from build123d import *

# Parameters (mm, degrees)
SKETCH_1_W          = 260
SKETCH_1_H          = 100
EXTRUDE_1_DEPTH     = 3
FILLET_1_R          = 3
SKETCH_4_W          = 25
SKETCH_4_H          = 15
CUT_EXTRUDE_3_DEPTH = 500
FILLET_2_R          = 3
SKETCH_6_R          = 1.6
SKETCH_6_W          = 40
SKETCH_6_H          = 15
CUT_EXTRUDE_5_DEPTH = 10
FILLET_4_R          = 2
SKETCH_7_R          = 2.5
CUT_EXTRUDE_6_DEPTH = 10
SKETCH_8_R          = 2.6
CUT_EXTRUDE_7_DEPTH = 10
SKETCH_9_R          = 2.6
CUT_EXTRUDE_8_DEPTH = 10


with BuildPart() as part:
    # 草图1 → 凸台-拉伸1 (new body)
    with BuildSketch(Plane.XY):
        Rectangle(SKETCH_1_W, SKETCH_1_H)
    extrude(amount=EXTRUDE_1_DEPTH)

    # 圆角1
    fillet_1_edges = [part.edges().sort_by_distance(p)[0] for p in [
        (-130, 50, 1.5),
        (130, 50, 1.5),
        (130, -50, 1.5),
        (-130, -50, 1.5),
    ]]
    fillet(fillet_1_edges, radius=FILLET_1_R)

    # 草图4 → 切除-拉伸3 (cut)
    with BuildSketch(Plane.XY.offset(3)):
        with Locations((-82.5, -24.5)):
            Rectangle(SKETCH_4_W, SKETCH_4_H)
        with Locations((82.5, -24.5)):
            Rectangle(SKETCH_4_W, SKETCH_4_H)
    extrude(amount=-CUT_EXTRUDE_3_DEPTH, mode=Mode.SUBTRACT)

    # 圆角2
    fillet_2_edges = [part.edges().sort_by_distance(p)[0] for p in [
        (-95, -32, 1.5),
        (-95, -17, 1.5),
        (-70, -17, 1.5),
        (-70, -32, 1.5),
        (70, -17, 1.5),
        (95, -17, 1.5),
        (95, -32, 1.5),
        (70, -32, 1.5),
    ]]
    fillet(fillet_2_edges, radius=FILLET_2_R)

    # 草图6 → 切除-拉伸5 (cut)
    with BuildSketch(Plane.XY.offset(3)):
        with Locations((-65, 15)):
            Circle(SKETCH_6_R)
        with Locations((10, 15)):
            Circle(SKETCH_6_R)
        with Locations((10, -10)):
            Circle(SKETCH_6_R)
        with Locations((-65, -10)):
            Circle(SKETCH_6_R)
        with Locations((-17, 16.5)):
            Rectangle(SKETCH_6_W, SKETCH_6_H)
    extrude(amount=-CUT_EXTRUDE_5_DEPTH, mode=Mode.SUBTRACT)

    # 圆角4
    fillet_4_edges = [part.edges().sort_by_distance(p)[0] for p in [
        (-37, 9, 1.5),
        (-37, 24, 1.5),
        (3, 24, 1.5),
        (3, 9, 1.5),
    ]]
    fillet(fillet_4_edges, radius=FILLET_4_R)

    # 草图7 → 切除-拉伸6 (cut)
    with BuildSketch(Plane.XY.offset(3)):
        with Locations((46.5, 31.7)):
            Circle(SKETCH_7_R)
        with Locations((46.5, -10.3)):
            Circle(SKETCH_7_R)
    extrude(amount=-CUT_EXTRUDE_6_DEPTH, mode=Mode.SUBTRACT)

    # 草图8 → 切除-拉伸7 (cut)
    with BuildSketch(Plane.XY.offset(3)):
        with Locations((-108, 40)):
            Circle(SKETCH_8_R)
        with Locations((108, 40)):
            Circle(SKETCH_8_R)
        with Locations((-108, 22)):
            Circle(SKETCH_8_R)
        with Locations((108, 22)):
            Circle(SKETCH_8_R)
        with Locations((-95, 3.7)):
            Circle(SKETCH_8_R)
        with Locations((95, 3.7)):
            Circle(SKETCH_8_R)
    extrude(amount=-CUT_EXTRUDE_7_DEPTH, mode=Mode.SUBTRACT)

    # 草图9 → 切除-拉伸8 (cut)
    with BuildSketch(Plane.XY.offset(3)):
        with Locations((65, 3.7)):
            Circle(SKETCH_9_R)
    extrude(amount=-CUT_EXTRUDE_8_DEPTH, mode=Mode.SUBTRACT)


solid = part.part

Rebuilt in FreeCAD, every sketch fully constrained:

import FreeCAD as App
import Part
import Sketcher

V = App.Vector


def edges_at(feature, points):
    """Names of the edges that pass closest to the given points."""
    edges = feature.Shape.Edges
    near = lambda p: min(range(len(edges)), key=lambda i: edges[i].distToShape(Part.Vertex(*p))[0])
    return sorted({f"Edge{near(p) + 1}" for p in points})


def add_polygon(sketch, points):
    """Adds a closed chain of lines whose ends are joined by coincident constraints."""
    first, n = sketch.GeometryCount, len(points)
    for a, b in zip(points, points[1:] + points[:1]):
        sketch.addGeometry(Part.LineSegment(App.Vector(*a, 0), App.Vector(*b, 0)), False)
    for i in range(n):
        sketch.addConstraint(Sketcher.Constraint("Coincident", first + i, 2, first + (i + 1) % n, 1))

doc = App.newDocument("Part")
params = doc.addObject("Spreadsheet::Sheet", "Params")
for row, (alias, value) in enumerate([
    ("sketch1_width", "260 mm"),
    ("sketch1_height", "100 mm"),
    ("pad1_length", "3 mm"),
    ("fillet_radius", "3 mm"),
    ("sketch2_width", "25 mm"),
    ("sketch2_height", "15 mm"),
    ("pocket1_length", "500 mm"),
    ("fillet2_radius", "3 mm"),
    ("sketch3_diameter", "3.2 mm"),
    ("sketch3_width", "40 mm"),
    ("sketch3_height", "15 mm"),
    ("pocket2_length", "10 mm"),
    ("fillet3_radius", "2 mm"),
    ("sketch4_diameter", "5 mm"),
    ("pocket3_length", "10 mm"),
    ("sketch5_diameter", "5.2 mm"),
    ("pocket4_length", "10 mm"),
    ("sketch6_diameter", "5.2 mm"),
    ("pocket5_length", "10 mm"),
], start=1):
    params.set(f"A{row}", alias)
    params.set(f"B{row}", "=" + value)
    params.setAlias(f"B{row}", alias)

body = doc.addObject("PartDesign::Body", "Body")

# Sketch on XY plane
sketch1 = body.newObject("Sketcher::SketchObject", "Sketch")
sketch1.AttachmentSupport = (doc.getObject("XY_Plane"), [""])
sketch1.MapMode = "FlatFace"
add_polygon(sketch1, [(-130, 50), (-130, -50), (130, -50), (130, 50)])  # lines 0-3
sketch1.addConstraint([
    Sketcher.Constraint("Vertical", 0),
    Sketcher.Constraint("Horizontal", 1),
    Sketcher.Constraint("Vertical", 2),
    Sketcher.Constraint("Horizontal", 3),
    Sketcher.Constraint("Symmetric", 0, 2, 2, 2, -1, 1),
    Sketcher.Constraint("DistanceX", 1, 1, 1, 2, 260.0),
    Sketcher.Constraint("DistanceY", 0, 2, 0, 1, 100.0),
])
sketch1.setExpression("Constraints[9]", "Params.sketch1_width")
sketch1.setExpression("Constraints[10]", "Params.sketch1_height")
pad1 = body.newObject("PartDesign::Pad", "Pad")
pad1.Profile = sketch1
pad1.setExpression("Length", "Params.pad1_length")
doc.recompute()

fillet = body.newObject("PartDesign::Fillet", "Fillet")
fillet.Base = (pad1, edges_at(pad1, [
    (-130, 50, 1.5),
    (130, 50, 1.5),
    (130, -50, 1.5),
    (-130, -50, 1.5),
]))
fillet.setExpression("Radius", "Params.fillet_radius")

# Sketch on XY plane
sketch2 = body.newObject("Sketcher::SketchObject", "Sketch001")
sketch2.AttachmentSupport = (doc.getObject("XY_Plane"), [""])
sketch2.MapMode = "FlatFace"
sketch2.AttachmentOffset = App.Placement(V(0, 0, 3), App.Rotation())
add_polygon(sketch2, [(-95, -17), (-95, -32), (-70, -32), (-70, -17)])  # lines 0-3
add_polygon(sketch2, [(70, -17), (70, -32), (95, -32), (95, -17)])  # lines 4-7
sketch2.addConstraint([
    Sketcher.Constraint("Vertical", 0),
    Sketcher.Constraint("Horizontal", 1),
    Sketcher.Constraint("Vertical", 2),
    Sketcher.Constraint("Horizontal", 3),
    Sketcher.Constraint("Vertical", 4),
    Sketcher.Constraint("Horizontal", 5),
    Sketcher.Constraint("Vertical", 6),
    Sketcher.Constraint("Horizontal", 7),
    Sketcher.Constraint("Symmetric", 1, 2, 4, 2, -2),
    Sketcher.Constraint("Symmetric", 3, 2, 6, 2, -2),
    Sketcher.Constraint("DistanceX", 1, 1, 1, 2, 25.0),
    Sketcher.Constraint("DistanceY", 0, 2, 0, 1, 15.0),
    Sketcher.Constraint("DistanceX", 0, 2, -1, 1, 95.0),
    Sketcher.Constraint("DistanceY", 0, 2, -1, 1, 32.0),
])
sketch2.setExpression("Constraints[18]", "Params.sketch2_width")
sketch2.setExpression("Constraints[19]", "Params.sketch2_height")
pocket1 = body.newObject("PartDesign::Pocket", "Pocket")
pocket1.Profile = sketch2
pocket1.setExpression("Length", "Params.pocket1_length")
doc.recompute()

fillet2 = body.newObject("PartDesign::Fillet", "Fillet001")
fillet2.Base = (pocket1, edges_at(pocket1, [
    (-95, -32, 1.5),
    (-95, -17, 1.5),
    (-70, -17, 1.5),
    (-70, -32, 1.5),
    (70, -17, 1.5),
    (95, -17, 1.5),
    (95, -32, 1.5),
    (70, -32, 1.5),
]))
fillet2.setExpression("Radius", "Params.fillet2_radius")

# Sketch on XY plane
sketch3 = body.newObject("Sketcher::SketchObject", "Sketch002")
sketch3.AttachmentSupport = (doc.getObject("XY_Plane"), [""])
sketch3.MapMode = "FlatFace"
sketch3.AttachmentOffset = App.Placement(V(0, 0, 3), App.Rotation())
sketch3.addGeometry(Part.Circle(V(-65, 15, 0), V(0, 0, 1), 1.6), False)  # 0
sketch3.addGeometry(Part.Circle(V(10, 15, 0), V(0, 0, 1), 1.6), False)  # 1
sketch3.addGeometry(Part.Circle(V(10, -10, 0), V(0, 0, 1), 1.6), False)  # 2
sketch3.addGeometry(Part.Circle(V(-65, -10, 0), V(0, 0, 1), 1.6), False)  # 3
add_polygon(sketch3, [(-37, 24), (-37, 9), (3, 9), (3, 24)])  # lines 4-7
sketch3.addConstraint([
    Sketcher.Constraint("Vertical", 4),
    Sketcher.Constraint("Horizontal", 5),
    Sketcher.Constraint("Vertical", 6),
    Sketcher.Constraint("Horizontal", 7),
    Sketcher.Constraint("Equal", 0, 1),
    Sketcher.Constraint("Equal", 1, 2),
    Sketcher.Constraint("Equal", 2, 3),
    Sketcher.Constraint("Horizontal", 0, 3, 1, 3),
    Sketcher.Constraint("Horizontal", 2, 3, 3, 3),
    Sketcher.Constraint("Vertical", 1, 3, 2, 3),
    Sketcher.Constraint("Vertical", 0, 3, 3, 3),
    Sketcher.Constraint("Diameter", 0, 3.2),
    Sketcher.Constraint("DistanceX", 5, 1, 5, 2, 40.0),
    Sketcher.Constraint("DistanceY", 4, 2, 4, 1, 15.0),
    Sketcher.Constraint("DistanceX", 0, 3, -1, 1, 65.0),
    Sketcher.Constraint("DistanceY", -1, 1, 0, 3, 15.0),
    Sketcher.Constraint("DistanceX", -1, 1, 1, 3, 10.0),
    Sketcher.Constraint("DistanceY", 2, 3, -1, 1, 10.0),
    Sketcher.Constraint("DistanceX", 4, 2, -1, 1, 37.0),
    Sketcher.Constraint("DistanceY", -1, 1, 4, 2, 9.0),
])
sketch3.setExpression("Constraints[15]", "Params.sketch3_diameter")
sketch3.setExpression("Constraints[16]", "Params.sketch3_width")
sketch3.setExpression("Constraints[17]", "Params.sketch3_height")
pocket2 = body.newObject("PartDesign::Pocket", "Pocket001")
pocket2.Profile = sketch3
pocket2.setExpression("Length", "Params.pocket2_length")
doc.recompute()

fillet3 = body.newObject("PartDesign::Fillet", "Fillet002")
fillet3.Base = (pocket2, edges_at(pocket2, [
    (-37, 9, 1.5),
    (-37, 24, 1.5),
    (3, 24, 1.5),
    (3, 9, 1.5),
]))
fillet3.setExpression("Radius", "Params.fillet3_radius")

# Sketch on XY plane
sketch4 = body.newObject("Sketcher::SketchObject", "Sketch003")
sketch4.AttachmentSupport = (doc.getObject("XY_Plane"), [""])
sketch4.MapMode = "FlatFace"
sketch4.AttachmentOffset = App.Placement(V(0, 0, 3), App.Rotation())
sketch4.addGeometry([
    Part.Circle(V(46.5, 31.7, 0), V(0, 0, 1), 2.5),
    Part.Circle(V(46.5, -10.3, 0), V(0, 0, 1), 2.5),
], False)
sketch4.addConstraint([
    Sketcher.Constraint("Equal", 0, 1),
    Sketcher.Constraint("Vertical", 0, 3, 1, 3),
    Sketcher.Constraint("Diameter", 0, 5.0),
    Sketcher.Constraint("DistanceY", 1, 3, 0, 3, 42.0),
    Sketcher.Constraint("DistanceX", -1, 1, 0, 3, 46.5),
    Sketcher.Constraint("DistanceY", -1, 1, 0, 3, 31.7),
])
sketch4.setExpression("Constraints[2]", "Params.sketch4_diameter")
pocket3 = body.newObject("PartDesign::Pocket", "Pocket002")
pocket3.Profile = sketch4
pocket3.setExpression("Length", "Params.pocket3_length")

# Sketch on XY plane
sketch5 = body.newObject("Sketcher::SketchObject", "Sketch004")
sketch5.AttachmentSupport = (doc.getObject("XY_Plane"), [""])
sketch5.MapMode = "FlatFace"
sketch5.AttachmentOffset = App.Placement(V(0, 0, 3), App.Rotation())
sketch5.addGeometry([
    Part.Circle(V(-108, 40, 0), V(0, 0, 1), 2.6),  # 0
    Part.Circle(V(108, 40, 0), V(0, 0, 1), 2.6),  # 1
    Part.Circle(V(-108, 22, 0), V(0, 0, 1), 2.6),  # 2
    Part.Circle(V(108, 22, 0), V(0, 0, 1), 2.6),  # 3
    Part.Circle(V(-95, 3.7, 0), V(0, 0, 1), 2.6),  # 4
    Part.Circle(V(95, 3.7, 0), V(0, 0, 1), 2.6),  # 5
], False)
sketch5.addConstraint([
    Sketcher.Constraint("Equal", 0, 1),
    Sketcher.Constraint("Equal", 1, 2),
    Sketcher.Constraint("Equal", 2, 3),
    Sketcher.Constraint("Equal", 3, 4),
    Sketcher.Constraint("Equal", 4, 5),
    Sketcher.Constraint("Symmetric", 0, 3, 1, 3, -2),
    Sketcher.Constraint("Symmetric", 2, 3, 3, 3, -2),
    Sketcher.Constraint("Symmetric", 4, 3, 5, 3, -2),
    Sketcher.Constraint("Vertical", 0, 3, 2, 3),
    Sketcher.Constraint("Diameter", 0, 5.2),
    Sketcher.Constraint("DistanceX", 0, 3, -1, 1, 108.0),
    Sketcher.Constraint("DistanceY", -1, 1, 0, 3, 40.0),
    Sketcher.Constraint("DistanceY", -1, 1, 2, 3, 22.0),
    Sketcher.Constraint("DistanceX", 4, 3, -1, 1, 95.0),
    Sketcher.Constraint("DistanceY", -1, 1, 4, 3, 3.7),
])
sketch5.setExpression("Constraints[9]", "Params.sketch5_diameter")
pocket4 = body.newObject("PartDesign::Pocket", "Pocket003")
pocket4.Profile = sketch5
pocket4.setExpression("Length", "Params.pocket4_length")

# Sketch on XY plane
sketch6 = body.newObject("Sketcher::SketchObject", "Sketch005")
sketch6.AttachmentSupport = (doc.getObject("XY_Plane"), [""])
sketch6.MapMode = "FlatFace"
sketch6.AttachmentOffset = App.Placement(V(0, 0, 3), App.Rotation())
sketch6.addGeometry(Part.Circle(V(65, 3.7, 0), V(0, 0, 1), 2.6), False)
sketch6.addConstraint([
    Sketcher.Constraint("Diameter", 0, 5.2),
    Sketcher.Constraint("DistanceX", -1, 1, 0, 3, 65.0),
    Sketcher.Constraint("DistanceY", -1, 1, 0, 3, 3.7),
])
sketch6.setExpression("Constraints[0]", "Params.sketch6_diameter")
pocket5 = body.newObject("PartDesign::Pocket", "Pocket004")
pocket5.Profile = sketch6
pocket5.setExpression("Length", "Params.pocket5_length")

doc.recompute()
